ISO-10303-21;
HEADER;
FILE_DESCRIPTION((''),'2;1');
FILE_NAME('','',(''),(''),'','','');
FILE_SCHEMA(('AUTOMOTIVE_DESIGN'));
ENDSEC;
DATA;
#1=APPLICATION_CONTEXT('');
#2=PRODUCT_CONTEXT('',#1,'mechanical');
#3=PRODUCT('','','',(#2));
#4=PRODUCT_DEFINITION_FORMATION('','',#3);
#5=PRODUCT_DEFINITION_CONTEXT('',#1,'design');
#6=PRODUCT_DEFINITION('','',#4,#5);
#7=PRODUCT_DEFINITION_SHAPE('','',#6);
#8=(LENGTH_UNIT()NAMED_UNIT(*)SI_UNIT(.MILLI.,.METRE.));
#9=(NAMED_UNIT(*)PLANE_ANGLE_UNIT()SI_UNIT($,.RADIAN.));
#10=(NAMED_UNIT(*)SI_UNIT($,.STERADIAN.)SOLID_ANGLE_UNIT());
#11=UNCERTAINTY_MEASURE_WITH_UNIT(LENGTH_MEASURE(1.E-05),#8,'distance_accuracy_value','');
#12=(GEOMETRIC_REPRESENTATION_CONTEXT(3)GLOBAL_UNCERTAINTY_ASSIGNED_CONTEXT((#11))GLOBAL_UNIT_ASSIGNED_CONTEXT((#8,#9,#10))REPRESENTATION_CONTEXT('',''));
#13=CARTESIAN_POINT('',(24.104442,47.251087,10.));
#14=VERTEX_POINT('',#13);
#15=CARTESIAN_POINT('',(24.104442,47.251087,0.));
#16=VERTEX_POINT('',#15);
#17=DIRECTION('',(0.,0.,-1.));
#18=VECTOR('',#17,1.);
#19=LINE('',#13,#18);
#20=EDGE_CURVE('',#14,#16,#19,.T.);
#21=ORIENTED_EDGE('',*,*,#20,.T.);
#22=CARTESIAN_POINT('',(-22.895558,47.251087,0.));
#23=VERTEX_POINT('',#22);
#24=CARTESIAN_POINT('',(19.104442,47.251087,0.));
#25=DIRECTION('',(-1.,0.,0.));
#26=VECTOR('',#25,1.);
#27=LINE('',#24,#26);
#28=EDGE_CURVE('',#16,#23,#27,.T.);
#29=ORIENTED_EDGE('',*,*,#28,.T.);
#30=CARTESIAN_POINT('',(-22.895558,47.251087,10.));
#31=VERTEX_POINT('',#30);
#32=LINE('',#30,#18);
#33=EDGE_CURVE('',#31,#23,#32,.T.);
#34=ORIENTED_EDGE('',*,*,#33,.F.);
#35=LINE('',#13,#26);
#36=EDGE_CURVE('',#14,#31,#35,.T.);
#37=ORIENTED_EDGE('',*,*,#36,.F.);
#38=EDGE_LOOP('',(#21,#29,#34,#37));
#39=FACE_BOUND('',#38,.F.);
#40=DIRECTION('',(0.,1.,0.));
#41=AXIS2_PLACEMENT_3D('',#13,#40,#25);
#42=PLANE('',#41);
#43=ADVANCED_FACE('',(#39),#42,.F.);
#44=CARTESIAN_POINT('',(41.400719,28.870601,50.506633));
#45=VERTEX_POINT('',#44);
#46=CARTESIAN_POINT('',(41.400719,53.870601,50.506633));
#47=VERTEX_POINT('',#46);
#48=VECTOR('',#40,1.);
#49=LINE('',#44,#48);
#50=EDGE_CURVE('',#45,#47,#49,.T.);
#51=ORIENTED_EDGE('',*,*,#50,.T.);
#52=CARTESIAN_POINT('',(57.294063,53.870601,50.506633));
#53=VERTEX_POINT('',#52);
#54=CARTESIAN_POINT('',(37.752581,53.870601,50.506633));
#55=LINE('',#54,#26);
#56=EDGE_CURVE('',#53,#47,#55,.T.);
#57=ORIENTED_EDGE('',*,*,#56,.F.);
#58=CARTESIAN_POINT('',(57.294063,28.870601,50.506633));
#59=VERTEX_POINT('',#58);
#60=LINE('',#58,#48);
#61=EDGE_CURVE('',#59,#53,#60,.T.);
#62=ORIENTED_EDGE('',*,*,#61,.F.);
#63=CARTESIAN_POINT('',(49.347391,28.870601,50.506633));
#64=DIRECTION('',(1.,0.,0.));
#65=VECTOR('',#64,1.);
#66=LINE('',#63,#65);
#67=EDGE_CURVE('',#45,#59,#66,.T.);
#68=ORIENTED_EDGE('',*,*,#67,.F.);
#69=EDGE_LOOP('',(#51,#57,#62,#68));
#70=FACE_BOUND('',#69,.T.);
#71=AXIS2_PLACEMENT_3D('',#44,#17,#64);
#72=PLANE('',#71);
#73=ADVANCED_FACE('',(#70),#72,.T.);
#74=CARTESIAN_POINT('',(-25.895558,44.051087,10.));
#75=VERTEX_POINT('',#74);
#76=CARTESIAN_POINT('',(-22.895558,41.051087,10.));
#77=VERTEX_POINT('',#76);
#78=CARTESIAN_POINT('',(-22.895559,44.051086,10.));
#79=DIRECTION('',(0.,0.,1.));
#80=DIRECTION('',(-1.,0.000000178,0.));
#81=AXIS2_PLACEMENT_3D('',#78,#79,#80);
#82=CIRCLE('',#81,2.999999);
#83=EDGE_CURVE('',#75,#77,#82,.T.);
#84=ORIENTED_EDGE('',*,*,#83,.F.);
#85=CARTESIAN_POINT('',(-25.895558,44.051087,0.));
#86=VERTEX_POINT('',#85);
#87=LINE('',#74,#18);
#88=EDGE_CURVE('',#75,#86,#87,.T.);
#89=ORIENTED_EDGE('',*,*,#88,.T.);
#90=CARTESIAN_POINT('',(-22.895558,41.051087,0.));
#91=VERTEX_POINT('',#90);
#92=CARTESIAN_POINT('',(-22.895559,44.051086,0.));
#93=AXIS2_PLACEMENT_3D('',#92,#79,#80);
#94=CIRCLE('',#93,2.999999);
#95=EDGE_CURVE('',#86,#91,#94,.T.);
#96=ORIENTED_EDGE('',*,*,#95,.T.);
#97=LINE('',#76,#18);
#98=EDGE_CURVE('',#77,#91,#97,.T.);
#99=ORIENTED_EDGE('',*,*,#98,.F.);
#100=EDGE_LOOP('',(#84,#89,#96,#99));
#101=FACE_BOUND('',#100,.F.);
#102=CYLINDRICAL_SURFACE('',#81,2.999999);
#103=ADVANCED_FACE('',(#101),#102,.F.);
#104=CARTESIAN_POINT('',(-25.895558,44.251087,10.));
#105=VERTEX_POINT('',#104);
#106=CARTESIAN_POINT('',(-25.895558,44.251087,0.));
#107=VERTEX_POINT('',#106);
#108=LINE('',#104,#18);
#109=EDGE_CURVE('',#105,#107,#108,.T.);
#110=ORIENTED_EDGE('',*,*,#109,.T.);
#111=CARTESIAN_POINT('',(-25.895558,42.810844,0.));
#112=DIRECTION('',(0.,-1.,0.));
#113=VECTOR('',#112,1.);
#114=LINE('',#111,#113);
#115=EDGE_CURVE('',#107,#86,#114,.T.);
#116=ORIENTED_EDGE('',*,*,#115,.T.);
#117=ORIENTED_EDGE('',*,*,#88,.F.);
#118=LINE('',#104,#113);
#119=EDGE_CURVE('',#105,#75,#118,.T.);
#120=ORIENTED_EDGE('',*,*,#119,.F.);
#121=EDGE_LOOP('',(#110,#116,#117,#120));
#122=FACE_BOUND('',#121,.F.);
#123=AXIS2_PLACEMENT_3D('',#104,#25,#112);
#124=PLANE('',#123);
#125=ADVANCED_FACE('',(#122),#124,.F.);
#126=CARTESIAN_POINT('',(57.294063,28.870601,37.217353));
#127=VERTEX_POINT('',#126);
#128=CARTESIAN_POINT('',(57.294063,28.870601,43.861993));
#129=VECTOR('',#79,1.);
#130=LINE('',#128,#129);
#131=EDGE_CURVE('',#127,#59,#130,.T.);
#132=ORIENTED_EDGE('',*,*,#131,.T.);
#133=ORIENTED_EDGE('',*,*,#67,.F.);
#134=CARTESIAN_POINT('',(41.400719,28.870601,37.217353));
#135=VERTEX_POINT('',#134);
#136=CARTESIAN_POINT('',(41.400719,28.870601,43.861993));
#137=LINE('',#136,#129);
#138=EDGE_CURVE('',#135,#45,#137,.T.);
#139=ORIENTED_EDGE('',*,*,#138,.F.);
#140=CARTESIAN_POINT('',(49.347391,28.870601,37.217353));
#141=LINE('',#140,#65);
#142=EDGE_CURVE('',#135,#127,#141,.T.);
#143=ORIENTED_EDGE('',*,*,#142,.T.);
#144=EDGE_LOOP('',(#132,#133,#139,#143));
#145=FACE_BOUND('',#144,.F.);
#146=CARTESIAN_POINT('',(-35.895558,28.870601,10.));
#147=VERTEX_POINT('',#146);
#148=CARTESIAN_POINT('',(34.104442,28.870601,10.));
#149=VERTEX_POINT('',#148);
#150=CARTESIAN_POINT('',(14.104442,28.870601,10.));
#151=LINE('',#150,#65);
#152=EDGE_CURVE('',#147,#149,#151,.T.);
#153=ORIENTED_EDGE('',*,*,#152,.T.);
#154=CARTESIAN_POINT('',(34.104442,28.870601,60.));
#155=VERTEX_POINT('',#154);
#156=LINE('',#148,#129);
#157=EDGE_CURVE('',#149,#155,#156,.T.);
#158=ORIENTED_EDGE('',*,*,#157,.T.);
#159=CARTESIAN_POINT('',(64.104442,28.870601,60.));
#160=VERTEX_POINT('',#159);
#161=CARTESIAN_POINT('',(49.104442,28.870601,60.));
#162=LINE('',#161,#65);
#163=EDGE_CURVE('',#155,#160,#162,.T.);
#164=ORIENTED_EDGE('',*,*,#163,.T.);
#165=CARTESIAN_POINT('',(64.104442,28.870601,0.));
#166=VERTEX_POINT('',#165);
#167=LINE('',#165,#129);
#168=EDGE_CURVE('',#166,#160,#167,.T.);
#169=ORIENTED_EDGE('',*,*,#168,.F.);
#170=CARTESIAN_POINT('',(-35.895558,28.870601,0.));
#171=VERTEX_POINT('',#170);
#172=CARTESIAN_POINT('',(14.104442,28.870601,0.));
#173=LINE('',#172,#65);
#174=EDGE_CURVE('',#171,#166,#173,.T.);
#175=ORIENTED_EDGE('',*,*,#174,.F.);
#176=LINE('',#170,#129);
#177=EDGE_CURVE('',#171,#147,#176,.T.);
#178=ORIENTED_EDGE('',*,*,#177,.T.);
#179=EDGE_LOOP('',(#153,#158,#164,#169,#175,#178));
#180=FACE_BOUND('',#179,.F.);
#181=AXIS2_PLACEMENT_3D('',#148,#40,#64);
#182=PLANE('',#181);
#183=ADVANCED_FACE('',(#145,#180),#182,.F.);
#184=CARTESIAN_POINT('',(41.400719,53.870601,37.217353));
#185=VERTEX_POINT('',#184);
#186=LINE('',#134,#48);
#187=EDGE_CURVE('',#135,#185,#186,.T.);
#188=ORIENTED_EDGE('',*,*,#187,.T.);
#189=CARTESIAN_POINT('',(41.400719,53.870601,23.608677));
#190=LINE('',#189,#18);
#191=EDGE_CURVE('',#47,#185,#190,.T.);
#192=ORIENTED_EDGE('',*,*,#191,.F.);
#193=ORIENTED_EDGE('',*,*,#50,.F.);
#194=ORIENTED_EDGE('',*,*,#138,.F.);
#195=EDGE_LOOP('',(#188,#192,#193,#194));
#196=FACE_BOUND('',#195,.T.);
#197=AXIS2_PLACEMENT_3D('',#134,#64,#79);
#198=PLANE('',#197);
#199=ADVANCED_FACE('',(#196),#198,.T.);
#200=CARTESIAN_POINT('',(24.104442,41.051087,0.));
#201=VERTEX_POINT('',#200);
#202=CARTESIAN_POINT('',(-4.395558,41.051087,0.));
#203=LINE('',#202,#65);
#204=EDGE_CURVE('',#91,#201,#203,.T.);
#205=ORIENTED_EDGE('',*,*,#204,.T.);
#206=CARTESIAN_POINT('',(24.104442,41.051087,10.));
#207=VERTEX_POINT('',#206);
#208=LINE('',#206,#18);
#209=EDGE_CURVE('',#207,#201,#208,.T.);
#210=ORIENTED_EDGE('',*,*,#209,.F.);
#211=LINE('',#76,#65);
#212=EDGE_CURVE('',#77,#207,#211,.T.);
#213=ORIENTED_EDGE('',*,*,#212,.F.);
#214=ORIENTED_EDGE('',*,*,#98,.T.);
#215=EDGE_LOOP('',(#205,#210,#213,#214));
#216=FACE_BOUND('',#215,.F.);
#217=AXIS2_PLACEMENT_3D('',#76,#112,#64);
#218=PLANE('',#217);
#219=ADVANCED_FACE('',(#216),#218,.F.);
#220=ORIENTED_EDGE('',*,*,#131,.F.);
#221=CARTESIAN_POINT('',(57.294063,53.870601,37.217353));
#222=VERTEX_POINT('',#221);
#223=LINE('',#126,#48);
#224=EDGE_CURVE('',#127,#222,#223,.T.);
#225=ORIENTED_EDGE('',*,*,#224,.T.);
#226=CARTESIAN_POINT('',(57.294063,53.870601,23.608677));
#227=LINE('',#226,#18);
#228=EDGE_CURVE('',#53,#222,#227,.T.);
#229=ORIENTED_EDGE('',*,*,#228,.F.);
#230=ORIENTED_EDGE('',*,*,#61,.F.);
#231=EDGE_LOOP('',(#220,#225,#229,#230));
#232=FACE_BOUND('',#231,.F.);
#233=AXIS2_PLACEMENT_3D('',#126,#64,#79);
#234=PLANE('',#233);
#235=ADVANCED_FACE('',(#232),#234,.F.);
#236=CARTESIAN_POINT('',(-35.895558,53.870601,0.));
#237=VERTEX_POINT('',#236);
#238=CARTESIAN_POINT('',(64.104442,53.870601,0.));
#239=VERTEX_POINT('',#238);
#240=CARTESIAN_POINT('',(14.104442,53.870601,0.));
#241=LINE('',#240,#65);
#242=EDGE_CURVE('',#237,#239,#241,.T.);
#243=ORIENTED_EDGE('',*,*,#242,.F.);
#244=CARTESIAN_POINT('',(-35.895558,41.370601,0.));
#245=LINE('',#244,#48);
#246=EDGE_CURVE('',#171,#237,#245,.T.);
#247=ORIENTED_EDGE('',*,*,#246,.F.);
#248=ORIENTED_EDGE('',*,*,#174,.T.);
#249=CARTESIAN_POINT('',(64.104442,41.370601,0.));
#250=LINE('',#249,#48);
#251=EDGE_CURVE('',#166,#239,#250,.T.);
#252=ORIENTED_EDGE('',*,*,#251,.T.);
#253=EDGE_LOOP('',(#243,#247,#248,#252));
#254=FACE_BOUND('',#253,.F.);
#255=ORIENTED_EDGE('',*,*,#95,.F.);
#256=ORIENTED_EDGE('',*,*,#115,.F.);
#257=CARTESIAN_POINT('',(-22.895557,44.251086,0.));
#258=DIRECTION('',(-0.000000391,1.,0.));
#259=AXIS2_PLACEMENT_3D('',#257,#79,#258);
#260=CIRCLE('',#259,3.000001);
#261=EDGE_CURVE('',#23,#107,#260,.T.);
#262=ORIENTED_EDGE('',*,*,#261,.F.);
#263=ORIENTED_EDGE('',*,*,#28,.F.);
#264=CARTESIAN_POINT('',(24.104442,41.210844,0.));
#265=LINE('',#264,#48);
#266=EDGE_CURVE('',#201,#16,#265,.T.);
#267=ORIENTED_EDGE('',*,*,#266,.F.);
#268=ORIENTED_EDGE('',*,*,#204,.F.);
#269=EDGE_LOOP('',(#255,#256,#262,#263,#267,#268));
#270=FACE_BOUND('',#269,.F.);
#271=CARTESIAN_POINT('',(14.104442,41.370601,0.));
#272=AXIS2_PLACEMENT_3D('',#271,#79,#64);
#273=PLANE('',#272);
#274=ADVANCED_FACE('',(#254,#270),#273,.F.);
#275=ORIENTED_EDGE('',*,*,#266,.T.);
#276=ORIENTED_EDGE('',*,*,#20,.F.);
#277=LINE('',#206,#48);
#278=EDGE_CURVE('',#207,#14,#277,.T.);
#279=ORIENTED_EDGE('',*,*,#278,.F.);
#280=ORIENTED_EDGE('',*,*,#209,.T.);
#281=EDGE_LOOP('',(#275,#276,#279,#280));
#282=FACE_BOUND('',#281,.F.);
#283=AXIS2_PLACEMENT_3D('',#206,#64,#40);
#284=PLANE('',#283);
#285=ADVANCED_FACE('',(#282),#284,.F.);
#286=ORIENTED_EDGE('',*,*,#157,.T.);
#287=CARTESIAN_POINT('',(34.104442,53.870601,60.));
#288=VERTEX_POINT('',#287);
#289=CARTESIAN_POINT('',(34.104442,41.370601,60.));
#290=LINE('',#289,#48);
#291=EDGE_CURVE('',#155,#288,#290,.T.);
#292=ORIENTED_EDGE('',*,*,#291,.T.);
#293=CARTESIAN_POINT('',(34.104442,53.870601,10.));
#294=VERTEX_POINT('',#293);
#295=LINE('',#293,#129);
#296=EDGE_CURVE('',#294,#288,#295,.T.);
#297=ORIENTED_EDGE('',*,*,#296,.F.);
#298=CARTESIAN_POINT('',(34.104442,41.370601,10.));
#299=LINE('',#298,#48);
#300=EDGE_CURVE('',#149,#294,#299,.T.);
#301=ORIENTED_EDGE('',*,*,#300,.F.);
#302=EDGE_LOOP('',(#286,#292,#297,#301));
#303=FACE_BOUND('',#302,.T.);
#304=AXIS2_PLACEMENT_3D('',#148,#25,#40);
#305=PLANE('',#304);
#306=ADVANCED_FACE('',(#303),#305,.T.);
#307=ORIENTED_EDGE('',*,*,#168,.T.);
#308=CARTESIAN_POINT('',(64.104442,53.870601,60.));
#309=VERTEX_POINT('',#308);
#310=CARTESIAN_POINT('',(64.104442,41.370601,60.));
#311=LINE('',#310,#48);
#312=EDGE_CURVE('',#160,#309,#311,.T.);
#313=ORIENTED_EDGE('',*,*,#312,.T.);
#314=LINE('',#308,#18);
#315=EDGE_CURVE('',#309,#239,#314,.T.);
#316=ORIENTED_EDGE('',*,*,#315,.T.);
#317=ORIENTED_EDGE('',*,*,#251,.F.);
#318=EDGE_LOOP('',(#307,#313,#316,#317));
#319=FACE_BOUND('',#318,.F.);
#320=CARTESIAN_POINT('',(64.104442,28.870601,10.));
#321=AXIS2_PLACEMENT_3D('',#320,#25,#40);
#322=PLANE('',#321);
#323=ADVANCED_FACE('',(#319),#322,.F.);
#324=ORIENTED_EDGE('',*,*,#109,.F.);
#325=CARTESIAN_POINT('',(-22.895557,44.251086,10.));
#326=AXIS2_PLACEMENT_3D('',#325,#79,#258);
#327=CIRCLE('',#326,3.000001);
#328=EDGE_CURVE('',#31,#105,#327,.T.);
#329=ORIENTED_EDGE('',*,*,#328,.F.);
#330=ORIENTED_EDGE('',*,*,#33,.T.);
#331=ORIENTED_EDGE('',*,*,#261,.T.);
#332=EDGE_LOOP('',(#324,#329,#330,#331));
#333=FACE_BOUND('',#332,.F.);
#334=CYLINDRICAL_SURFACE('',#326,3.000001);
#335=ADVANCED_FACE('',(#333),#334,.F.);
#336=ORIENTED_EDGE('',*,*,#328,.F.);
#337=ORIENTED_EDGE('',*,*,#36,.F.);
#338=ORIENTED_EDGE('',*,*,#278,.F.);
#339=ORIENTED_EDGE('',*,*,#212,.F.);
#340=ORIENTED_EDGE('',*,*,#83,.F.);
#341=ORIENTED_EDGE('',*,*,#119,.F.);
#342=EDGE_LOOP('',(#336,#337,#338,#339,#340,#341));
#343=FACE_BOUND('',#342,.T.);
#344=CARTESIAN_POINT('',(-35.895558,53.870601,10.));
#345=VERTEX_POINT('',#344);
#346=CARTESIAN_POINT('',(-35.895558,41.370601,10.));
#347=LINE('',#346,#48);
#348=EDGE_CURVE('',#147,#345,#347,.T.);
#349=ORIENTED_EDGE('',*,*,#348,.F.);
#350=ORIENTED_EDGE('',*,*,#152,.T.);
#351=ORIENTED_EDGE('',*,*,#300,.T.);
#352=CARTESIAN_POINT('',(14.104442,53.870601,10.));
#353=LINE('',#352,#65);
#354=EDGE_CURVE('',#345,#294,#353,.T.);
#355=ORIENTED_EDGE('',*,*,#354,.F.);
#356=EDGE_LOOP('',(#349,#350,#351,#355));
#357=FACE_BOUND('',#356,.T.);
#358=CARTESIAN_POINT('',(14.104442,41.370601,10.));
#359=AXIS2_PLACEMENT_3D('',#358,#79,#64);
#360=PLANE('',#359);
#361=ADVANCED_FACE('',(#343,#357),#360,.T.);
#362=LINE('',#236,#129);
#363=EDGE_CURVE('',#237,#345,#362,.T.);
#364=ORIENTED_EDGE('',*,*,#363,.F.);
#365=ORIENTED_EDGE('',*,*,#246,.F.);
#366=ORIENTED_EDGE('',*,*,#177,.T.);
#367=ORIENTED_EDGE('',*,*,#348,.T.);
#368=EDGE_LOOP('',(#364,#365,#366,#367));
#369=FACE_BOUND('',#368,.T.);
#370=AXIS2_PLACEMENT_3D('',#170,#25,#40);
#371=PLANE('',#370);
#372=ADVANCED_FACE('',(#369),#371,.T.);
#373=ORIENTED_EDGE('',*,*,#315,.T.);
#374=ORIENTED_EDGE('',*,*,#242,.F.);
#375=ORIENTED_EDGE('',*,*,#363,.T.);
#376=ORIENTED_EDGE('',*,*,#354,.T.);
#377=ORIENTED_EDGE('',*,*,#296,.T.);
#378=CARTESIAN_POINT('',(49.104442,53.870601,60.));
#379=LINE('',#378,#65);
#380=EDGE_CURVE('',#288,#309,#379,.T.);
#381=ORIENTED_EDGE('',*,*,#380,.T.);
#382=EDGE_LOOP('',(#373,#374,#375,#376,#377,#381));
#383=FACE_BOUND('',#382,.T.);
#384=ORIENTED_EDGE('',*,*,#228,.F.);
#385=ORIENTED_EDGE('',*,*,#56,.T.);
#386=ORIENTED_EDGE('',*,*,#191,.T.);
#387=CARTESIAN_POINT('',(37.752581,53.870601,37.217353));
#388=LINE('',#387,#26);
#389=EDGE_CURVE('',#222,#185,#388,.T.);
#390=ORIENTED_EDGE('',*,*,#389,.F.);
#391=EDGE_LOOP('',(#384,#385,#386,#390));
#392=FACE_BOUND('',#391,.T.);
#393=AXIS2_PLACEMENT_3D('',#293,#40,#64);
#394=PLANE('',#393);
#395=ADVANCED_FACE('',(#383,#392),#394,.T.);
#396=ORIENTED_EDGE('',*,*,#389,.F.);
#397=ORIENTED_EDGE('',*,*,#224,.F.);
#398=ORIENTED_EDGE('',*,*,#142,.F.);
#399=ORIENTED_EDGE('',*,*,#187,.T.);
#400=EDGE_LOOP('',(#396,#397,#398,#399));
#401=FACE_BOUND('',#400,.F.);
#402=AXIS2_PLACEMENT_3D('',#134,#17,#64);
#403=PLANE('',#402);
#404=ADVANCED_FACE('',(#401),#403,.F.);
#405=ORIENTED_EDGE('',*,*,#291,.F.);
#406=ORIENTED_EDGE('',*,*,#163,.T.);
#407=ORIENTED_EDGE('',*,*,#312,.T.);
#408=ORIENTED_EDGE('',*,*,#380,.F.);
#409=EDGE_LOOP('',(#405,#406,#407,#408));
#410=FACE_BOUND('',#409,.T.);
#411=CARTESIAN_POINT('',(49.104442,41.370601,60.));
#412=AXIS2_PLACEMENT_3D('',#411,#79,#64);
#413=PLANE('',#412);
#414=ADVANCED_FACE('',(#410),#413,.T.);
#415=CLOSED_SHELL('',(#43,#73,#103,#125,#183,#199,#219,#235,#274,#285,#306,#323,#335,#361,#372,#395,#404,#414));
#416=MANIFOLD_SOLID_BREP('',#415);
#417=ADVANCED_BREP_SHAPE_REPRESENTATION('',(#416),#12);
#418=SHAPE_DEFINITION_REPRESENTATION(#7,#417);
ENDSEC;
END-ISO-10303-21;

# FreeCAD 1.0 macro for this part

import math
import FreeCAD as App
import Part
import Sketcher

doc = App.newDocument("Part")
body = doc.addObject("PartDesign::Body", "Body")

# Sketch on XY plane
sketch1 = doc.addObject("Sketcher::SketchObject", "Sketch")
body.addObject(sketch1)
sketch1.AttachmentSupport = (doc.XY_Plane, [""])
sketch1.MapMode = "FlatFace"
sketch1.addGeometry([
    Part.LineSegment(App.Vector(-36, 54, 0), App.Vector(-36, 29, 0)),
    Part.LineSegment(App.Vector(-36, 29, 0), App.Vector(64, 29, 0)),
    Part.LineSegment(App.Vector(64, 29, 0), App.Vector(64, 54, 0)),
    Part.LineSegment(App.Vector(64, 54, 0), App.Vector(-36, 54, 0)),
], False)
sketch1.addConstraint([
    Sketcher.Constraint("Coincident", 0, 2, 1, 1),
    Sketcher.Constraint("Coincident", 1, 2, 2, 1),
    Sketcher.Constraint("Coincident", 2, 2, 3, 1),
    Sketcher.Constraint("Coincident", 3, 2, 0, 1),
    Sketcher.Constraint("Vertical", 0),
    Sketcher.Constraint("Horizontal", 1),
    Sketcher.Constraint("Vertical", 2),
    Sketcher.Constraint("Horizontal", 3),
    Sketcher.Constraint("DistanceX", 1, 1, 1, 2, 100.0),
    Sketcher.Constraint("DistanceY", 0, 2, 0, 1, 25.0),
    Sketcher.Constraint("DistanceY", -1, 1, 0, 2, 28.870601),
    Sketcher.Constraint("DistanceX", 0, 2, -1, 1, 35.895558),
])
pad1 = doc.addObject("PartDesign::Pad", "Pad")
body.addObject(pad1)
pad1.Profile = sketch1
pad1.Length = 10

# Sketch on XY plane
sketch2 = doc.addObject("Sketcher::SketchObject", "Sketch001")
body.addObject(sketch2)
sketch2.AttachmentSupport = (doc.XY_Plane, [""])
sketch2.MapMode = "FlatFace"
sketch2.AttachmentOffset = App.Placement(App.Vector(0, 0, 10), App.Rotation())
sketch2.addGeometry([
    Part.LineSegment(App.Vector(34, 54, 0), App.Vector(34, 29, 0)),
    Part.LineSegment(App.Vector(34, 29, 0), App.Vector(64, 29, 0)),
    Part.LineSegment(App.Vector(64, 29, 0), App.Vector(64, 54, 0)),
    Part.LineSegment(App.Vector(64, 54, 0), App.Vector(34, 54, 0)),
], False)
sketch2.addConstraint([
    Sketcher.Constraint("Coincident", 0, 2, 1, 1),
    Sketcher.Constraint("Coincident", 1, 2, 2, 1),
    Sketcher.Constraint("Coincident", 2, 2, 3, 1),
    Sketcher.Constraint("Coincident", 3, 2, 0, 1),
    Sketcher.Constraint("Vertical", 0),
    Sketcher.Constraint("Horizontal", 1),
    Sketcher.Constraint("Vertical", 2),
    Sketcher.Constraint("Horizontal", 3),
    Sketcher.Constraint("DistanceX", 1, 1, 1, 2, 30.0),
    Sketcher.Constraint("DistanceY", 0, 2, 0, 1, 25.0),
    Sketcher.Constraint("DistanceY", -1, 1, 0, 2, 28.870601),
    Sketcher.Constraint("DistanceX", -1, 1, 0, 2, 34.104442),
])
pad2 = doc.addObject("PartDesign::Pad", "Pad001")
body.addObject(pad2)
pad2.Profile = sketch2
pad2.Length = 50

# Sketch on XZ plane
sketch3 = doc.addObject("Sketcher::SketchObject", "Sketch002")
body.addObject(sketch3)
sketch3.AttachmentSupport = (doc.XZ_Plane, [""])
sketch3.MapMode = "FlatFace"
sketch3.AttachmentOffset = App.Placement(App.Vector(0, 0, -28.870601), App.Rotation())
sketch3.addGeometry([
    Part.LineSegment(App.Vector(41, 51, 0), App.Vector(41, 37, 0)),
    Part.LineSegment(App.Vector(41, 37, 0), App.Vector(57, 37, 0)),
    Part.LineSegment(App.Vector(57, 37, 0), App.Vector(57, 51, 0)),
    Part.LineSegment(App.Vector(57, 51, 0), App.Vector(41, 51, 0)),
], False)
sketch3.addConstraint([
    Sketcher.Constraint("Coincident", 0, 2, 1, 1),
    Sketcher.Constraint("Coincident", 1, 2, 2, 1),
    Sketcher.Constraint("Coincident", 2, 2, 3, 1),
    Sketcher.Constraint("Coincident", 3, 2, 0, 1),
    Sketcher.Constraint("Vertical", 0),
    Sketcher.Constraint("Horizontal", 1),
    Sketcher.Constraint("Vertical", 2),
    Sketcher.Constraint("Horizontal", 3),
    Sketcher.Constraint("DistanceY", 0, 2, 0, 1, 13.28928),
    Sketcher.Constraint("DistanceX", 1, 1, 1, 2, 15.893344),
    Sketcher.Constraint("DistanceX", -1, 1, 0, 2, 41.400719),
    Sketcher.Constraint("DistanceY", -1, 1, 0, 2, 37.217353),
])
pocket1 = doc.addObject("PartDesign::Pocket", "Pocket")
body.addObject(pocket1)
pocket1.Profile = sketch3
pocket1.Type = "ThroughAll"

# Sketch on XY plane
sketch4 = doc.addObject("Sketcher::SketchObject", "Sketch003")
body.addObject(sketch4)
sketch4.AttachmentSupport = (doc.XY_Plane, [""])
sketch4.MapMode = "FlatFace"
sketch4.AttachmentOffset = App.Placement(App.Vector(0, 0, 10), App.Rotation())
sketch4.addGeometry([
    Part.LineSegment(App.Vector(-22.9, 41.05, 0), App.Vector(24.1, 41.05, 0)),  # 0
    Part.LineSegment(App.Vector(24.1, 41.05, 0), App.Vector(24.1, 47.25, 0)),  # 1
    Part.LineSegment(App.Vector(24.1, 47.25, 0), App.Vector(-22.9, 47.25, 0)),  # 2
    Part.ArcOfCircle(Part.Circle(App.Vector(-22.9, 44.25, 0), App.Vector(0, 0, 1), 3), math.radians(90), math.radians(180)),  # 3
    Part.LineSegment(App.Vector(-25.9, 44.25, 0), App.Vector(-25.9, 44.05, 0)),  # 4
    Part.ArcOfCircle(Part.Circle(App.Vector(-22.9, 44.05, 0), App.Vector(0, 0, 1), 3), math.radians(180), math.radians(270)),  # 5
], False)
sketch4.addConstraint([
    Sketcher.Constraint("Coincident", 0, 2, 1, 1),
    Sketcher.Constraint("Coincident", 1, 2, 2, 1),
    Sketcher.Constraint("Tangent", 2, 2, 3, 1),
    Sketcher.Constraint("Tangent", 3, 2, 4, 1),
    Sketcher.Constraint("Tangent", 4, 2, 5, 1),
    Sketcher.Constraint("Tangent", 5, 2, 0, 1),
    Sketcher.Constraint("Horizontal", 0),
    Sketcher.Constraint("Vertical", 1),
    Sketcher.Constraint("Horizontal", 2),
    Sketcher.Constraint("Vertical", 4),
    Sketcher.Constraint("Equal", 3, 5),
    Sketcher.Constraint("Radius", 3, 3.000001),
    Sketcher.Constraint("DistanceX", 0, 1, 0, 2, 47.0),
    Sketcher.Constraint("DistanceY", 1, 1, 1, 2, 6.2),
    Sketcher.Constraint("DistanceX", 5, 3, -1, 1, 22.895559),
    Sketcher.Constraint("DistanceY", -1, 1, 3, 3, 44.251086),
])
pocket2 = doc.addObject("PartDesign::Pocket", "Pocket001")
body.addObject(pocket2)
pocket2.Profile = sketch4
pocket2.Length = 25

doc.recompute()
